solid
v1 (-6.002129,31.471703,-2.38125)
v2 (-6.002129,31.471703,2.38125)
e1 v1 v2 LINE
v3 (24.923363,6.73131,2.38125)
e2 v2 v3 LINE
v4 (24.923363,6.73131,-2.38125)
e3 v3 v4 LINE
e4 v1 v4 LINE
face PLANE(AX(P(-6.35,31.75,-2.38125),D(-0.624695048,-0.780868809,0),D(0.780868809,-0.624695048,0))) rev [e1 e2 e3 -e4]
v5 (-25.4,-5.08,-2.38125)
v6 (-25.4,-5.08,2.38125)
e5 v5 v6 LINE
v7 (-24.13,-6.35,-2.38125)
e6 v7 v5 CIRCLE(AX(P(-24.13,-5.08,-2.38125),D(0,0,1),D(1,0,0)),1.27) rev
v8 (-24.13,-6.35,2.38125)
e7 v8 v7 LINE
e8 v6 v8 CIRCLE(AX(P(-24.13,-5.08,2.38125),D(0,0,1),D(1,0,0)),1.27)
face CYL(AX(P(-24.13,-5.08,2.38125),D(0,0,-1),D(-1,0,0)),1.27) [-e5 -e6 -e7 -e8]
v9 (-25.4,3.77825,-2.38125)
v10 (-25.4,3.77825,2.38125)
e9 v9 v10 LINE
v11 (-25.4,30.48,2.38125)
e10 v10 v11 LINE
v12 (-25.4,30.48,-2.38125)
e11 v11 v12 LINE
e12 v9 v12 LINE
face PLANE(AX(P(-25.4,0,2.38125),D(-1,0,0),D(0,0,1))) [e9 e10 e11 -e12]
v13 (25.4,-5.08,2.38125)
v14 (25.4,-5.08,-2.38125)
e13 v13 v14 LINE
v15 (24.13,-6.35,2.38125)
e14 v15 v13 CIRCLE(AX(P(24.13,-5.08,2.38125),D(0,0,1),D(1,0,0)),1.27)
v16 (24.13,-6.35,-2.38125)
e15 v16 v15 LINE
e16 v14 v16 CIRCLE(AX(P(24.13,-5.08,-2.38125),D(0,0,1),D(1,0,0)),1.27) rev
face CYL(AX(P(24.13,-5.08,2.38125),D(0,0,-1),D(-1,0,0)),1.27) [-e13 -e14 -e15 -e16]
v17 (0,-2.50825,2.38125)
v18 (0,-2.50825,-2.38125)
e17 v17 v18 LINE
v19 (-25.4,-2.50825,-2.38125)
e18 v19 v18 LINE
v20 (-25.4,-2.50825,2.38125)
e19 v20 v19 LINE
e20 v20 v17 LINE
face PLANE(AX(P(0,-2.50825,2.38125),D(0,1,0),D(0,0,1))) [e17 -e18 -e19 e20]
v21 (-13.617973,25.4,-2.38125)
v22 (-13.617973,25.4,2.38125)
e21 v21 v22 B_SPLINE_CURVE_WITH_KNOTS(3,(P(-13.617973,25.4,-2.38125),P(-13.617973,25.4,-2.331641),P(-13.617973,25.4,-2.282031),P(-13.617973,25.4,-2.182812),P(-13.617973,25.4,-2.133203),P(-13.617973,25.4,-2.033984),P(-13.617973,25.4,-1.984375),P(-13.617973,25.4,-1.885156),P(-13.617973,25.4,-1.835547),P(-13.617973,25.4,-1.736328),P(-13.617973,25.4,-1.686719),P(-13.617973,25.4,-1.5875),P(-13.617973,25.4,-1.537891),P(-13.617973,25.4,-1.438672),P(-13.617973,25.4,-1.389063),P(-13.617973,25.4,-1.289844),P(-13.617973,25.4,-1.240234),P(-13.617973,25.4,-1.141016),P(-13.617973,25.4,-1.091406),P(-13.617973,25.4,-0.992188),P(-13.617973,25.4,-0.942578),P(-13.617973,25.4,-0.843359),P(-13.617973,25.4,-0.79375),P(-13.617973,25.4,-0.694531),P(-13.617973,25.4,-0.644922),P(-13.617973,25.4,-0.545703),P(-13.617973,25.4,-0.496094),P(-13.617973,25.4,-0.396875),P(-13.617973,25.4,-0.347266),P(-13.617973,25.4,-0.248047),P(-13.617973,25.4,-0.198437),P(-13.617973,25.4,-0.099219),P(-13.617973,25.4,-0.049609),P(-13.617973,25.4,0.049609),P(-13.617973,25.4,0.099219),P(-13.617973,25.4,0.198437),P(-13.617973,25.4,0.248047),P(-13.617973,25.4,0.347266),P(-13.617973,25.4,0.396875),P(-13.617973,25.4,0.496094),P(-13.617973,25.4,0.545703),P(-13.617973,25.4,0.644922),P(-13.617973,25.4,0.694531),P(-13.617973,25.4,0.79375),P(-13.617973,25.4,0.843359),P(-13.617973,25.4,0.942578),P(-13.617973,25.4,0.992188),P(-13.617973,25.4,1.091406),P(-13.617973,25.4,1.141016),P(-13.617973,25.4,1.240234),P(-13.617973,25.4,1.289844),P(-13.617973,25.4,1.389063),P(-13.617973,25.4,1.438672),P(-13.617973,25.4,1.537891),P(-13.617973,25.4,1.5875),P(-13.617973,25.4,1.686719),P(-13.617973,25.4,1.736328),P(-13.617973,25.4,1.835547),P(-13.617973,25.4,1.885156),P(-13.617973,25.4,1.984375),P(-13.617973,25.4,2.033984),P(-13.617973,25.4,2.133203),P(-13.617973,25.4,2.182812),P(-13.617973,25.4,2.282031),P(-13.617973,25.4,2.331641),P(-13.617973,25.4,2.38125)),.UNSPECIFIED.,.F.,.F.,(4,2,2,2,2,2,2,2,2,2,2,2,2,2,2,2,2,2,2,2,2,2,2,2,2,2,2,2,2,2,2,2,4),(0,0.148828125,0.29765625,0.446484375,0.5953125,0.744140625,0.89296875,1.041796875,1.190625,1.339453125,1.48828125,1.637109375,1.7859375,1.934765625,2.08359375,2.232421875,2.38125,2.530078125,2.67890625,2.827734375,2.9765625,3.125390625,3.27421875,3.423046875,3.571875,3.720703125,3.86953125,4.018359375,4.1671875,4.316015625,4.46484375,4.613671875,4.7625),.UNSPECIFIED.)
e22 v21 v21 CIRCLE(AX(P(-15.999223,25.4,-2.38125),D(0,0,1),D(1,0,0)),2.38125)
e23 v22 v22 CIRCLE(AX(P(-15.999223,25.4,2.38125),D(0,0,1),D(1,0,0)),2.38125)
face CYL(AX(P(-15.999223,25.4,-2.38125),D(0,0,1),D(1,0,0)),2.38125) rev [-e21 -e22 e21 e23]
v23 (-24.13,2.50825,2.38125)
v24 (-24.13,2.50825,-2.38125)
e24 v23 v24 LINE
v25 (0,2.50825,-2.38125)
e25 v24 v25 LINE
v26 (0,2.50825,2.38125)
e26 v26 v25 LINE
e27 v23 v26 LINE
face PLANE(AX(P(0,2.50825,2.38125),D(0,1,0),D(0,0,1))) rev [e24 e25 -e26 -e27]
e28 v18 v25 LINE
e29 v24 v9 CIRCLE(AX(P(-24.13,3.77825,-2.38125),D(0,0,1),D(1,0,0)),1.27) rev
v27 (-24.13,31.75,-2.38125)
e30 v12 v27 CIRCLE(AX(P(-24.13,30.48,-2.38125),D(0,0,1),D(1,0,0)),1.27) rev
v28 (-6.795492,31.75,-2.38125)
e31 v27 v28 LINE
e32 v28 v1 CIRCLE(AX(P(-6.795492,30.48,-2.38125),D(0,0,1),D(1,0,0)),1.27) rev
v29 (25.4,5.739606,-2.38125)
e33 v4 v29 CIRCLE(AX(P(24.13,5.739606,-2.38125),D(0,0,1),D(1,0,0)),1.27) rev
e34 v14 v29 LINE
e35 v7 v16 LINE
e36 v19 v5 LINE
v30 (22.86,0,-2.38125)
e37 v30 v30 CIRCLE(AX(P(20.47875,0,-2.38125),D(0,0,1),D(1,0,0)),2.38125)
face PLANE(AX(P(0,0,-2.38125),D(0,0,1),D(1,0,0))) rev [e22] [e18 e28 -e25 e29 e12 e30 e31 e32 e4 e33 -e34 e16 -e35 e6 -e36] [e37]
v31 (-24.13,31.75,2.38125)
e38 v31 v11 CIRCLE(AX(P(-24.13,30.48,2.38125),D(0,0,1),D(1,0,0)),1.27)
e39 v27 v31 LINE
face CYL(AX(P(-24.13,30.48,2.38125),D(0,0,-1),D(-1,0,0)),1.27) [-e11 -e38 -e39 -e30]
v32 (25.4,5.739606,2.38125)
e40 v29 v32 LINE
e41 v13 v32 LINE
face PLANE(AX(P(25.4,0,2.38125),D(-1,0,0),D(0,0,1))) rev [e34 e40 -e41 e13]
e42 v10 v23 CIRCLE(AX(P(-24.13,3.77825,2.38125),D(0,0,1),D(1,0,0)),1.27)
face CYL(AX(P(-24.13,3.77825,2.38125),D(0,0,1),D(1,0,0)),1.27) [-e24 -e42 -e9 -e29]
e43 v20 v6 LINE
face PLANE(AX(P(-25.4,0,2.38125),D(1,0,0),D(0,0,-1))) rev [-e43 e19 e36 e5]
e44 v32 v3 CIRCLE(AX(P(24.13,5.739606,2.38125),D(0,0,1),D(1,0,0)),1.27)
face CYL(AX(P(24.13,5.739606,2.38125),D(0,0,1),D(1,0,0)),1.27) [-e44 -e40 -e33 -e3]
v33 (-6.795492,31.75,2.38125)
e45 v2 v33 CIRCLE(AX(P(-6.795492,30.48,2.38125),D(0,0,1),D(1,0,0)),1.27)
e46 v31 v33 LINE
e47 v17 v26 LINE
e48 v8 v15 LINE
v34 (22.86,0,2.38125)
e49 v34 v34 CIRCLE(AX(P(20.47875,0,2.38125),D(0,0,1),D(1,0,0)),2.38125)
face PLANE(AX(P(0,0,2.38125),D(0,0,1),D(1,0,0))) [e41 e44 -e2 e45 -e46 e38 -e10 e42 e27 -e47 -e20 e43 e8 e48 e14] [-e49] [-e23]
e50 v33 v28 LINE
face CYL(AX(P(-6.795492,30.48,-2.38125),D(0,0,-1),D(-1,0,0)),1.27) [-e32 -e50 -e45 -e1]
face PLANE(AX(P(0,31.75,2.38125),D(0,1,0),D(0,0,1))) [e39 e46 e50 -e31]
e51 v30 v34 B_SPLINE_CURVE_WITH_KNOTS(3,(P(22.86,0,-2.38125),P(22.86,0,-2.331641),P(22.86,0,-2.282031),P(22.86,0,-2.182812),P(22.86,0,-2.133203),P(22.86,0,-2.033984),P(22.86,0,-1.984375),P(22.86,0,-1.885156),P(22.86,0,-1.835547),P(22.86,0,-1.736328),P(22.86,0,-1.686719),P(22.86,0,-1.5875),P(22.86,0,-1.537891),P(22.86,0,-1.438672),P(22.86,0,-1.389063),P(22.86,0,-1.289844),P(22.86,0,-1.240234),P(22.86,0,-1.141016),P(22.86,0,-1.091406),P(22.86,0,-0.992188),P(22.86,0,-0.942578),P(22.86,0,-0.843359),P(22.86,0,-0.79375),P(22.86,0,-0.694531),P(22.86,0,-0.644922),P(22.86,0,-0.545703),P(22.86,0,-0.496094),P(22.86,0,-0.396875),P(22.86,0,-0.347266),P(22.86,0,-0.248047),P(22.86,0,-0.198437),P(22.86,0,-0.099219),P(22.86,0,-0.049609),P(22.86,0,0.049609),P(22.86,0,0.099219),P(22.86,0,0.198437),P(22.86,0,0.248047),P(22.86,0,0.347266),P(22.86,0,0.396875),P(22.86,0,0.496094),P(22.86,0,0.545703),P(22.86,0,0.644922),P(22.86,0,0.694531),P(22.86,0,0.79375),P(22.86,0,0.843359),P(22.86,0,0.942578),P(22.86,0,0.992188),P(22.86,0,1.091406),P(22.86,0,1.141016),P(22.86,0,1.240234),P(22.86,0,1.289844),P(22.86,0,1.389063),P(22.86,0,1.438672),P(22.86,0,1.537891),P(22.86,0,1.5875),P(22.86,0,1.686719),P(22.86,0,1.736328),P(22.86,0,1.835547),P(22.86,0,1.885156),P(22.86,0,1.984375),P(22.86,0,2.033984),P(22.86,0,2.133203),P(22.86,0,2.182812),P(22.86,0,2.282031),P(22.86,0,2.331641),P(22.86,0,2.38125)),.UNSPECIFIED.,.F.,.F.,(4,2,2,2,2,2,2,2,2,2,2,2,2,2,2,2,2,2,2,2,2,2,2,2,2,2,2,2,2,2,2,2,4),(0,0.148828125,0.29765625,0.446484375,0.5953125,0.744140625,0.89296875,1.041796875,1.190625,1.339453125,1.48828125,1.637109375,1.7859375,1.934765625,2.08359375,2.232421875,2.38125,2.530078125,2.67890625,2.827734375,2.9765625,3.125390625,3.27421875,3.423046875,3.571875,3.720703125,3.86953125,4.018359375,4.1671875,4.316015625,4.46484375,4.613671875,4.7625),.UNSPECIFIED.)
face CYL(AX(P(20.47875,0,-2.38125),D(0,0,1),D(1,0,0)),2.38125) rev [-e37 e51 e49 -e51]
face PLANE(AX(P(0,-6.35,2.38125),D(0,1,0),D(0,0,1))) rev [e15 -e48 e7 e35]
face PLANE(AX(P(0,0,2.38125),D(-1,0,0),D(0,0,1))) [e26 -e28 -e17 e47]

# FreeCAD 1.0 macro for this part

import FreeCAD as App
import Part
import Sketcher
from FreeCAD import Vector
Q = App.Units.Quantity


def edges_at(feature, points):
    """Names of the edges that pass closest to the given points."""
    edges = feature.Shape.Edges
    near = lambda p: min(range(len(edges)), key=lambda i: edges[i].distToShape(Part.Vertex(*p))[0])
    return sorted({f"Edge{near(p) + 1}" for p in points})

doc = App.newDocument("Part")
params = doc.addObject("Spreadsheet::Sheet", "Params")
for row, (alias, value) in enumerate([
    ("sketch1_width", "1 in"),
    ("sketch1_width2", "2 in"),
    ("sketch1_height", "1.5 in"),
    ("pad1_length", "0.1875 in"),
    ("sketch2_diameter", "0.1875 in"),
    ("sketch3_diameter", "0.1875 in"),
    ("sketch4_height", "1 in"),
    ("sketch4_width", "1.25 in"),
    ("fillet_radius", "0.05 in"),
], start=1):
    params.set(f"A{row}", alias)
    params.set(f"B{row}", "=" + value)
    params.setAlias(f"B{row}", alias)

body = doc.addObject("PartDesign::Body", "Body")

# Sketch on XY plane
sketch1 = body.newObject("Sketcher::SketchObject", "Sketch")
sketch1.AttachmentSupport = (doc.getObject("XY_Plane"), [""])
sketch1.MapMode = "FlatFace"
sketch1.addGeometry([
    Part.LineSegment(Vector(-25.4, 31.75, 0), Vector(-25.4, 2.50825, 0)),  # 0
    Part.LineSegment(Vector(-25.4, 2.50825, 0), Vector(0, 2.50825, 0)),  # 1
    Part.LineSegment(Vector(0, 2.50825, 0), Vector(0, -2.50825, 0)),  # 2
    Part.LineSegment(Vector(0, -2.50825, 0), Vector(-25.4, -2.50825, 0)),  # 3
    Part.LineSegment(Vector(-25.4, -2.50825, 0), Vector(-25.4, -6.35, 0)),  # 4
    Part.LineSegment(Vector(-25.4, -6.35, 0), Vector(25.4, -6.35, 0)),  # 5
    Part.LineSegment(Vector(25.4, -6.35, 0), Vector(25.4, 31.75, 0)),  # 6
    Part.LineSegment(Vector(25.4, 31.75, 0), Vector(-25.4, 31.75, 0)),  # 7
], False)
sketch1.addConstraint([
    Sketcher.Constraint("Coincident", 0, 2, 1, 1),
    Sketcher.Constraint("Coincident", 1, 2, 2, 1),
    Sketcher.Constraint("Coincident", 2, 2, 3, 1),
    Sketcher.Constraint("Coincident", 3, 2, 4, 1),
    Sketcher.Constraint("Coincident", 4, 2, 5, 1),
    Sketcher.Constraint("Coincident", 5, 2, 6, 1),
    Sketcher.Constraint("Coincident", 6, 2, 7, 1),
    Sketcher.Constraint("Coincident", 7, 2, 0, 1),
    Sketcher.Constraint("Vertical", 0),
    Sketcher.Constraint("Horizontal", 1),
    Sketcher.Constraint("Vertical", 2),
    Sketcher.Constraint("Horizontal", 3),
    Sketcher.Constraint("Vertical", 4),
    Sketcher.Constraint("Horizontal", 5),
    Sketcher.Constraint("Vertical", 6),
    Sketcher.Constraint("Horizontal", 7),
    Sketcher.Constraint("Symmetric", 1, 2, 2, 2, -1, 1),
    Sketcher.Constraint("Vertical", 0, 2, 3, 2),
    Sketcher.Constraint("DistanceX", 1, 1, 1, 2, Q("1 in")),
    Sketcher.Constraint("DistanceX", 5, 1, 5, 2, Q("2 in")),
    Sketcher.Constraint("DistanceY", 6, 1, 6, 2, Q("1.5 in")),
    Sketcher.Constraint("DistanceY", 4, 2, -1, 1, Q("0.25 in")),
    Sketcher.Constraint("DistanceY", 2, 2, 2, 1, Q("0.1975 in")),
])
sketch1.setExpression("Constraints[18]", "Params.sketch1_width")
sketch1.setExpression("Constraints[19]", "Params.sketch1_width2")
sketch1.setExpression("Constraints[20]", "Params.sketch1_height")
pad1 = body.newObject("PartDesign::Pad", "Pad")
pad1.Profile = sketch1
pad1.setExpression("Length", "Params.pad1_length")
pad1.Midplane = True

# Sketch on XY plane
sketch2 = body.newObject("Sketcher::SketchObject", "Sketch001")
sketch2.AttachmentSupport = (doc.getObject("XY_Plane"), [""])
sketch2.MapMode = "FlatFace"
sketch2.AttachmentOffset = App.Placement(Vector(0, 0, 0.09375 * 25.4), App.Rotation())
sketch2.addGeometry(Part.Circle(Vector(20.47875, 0, 0), Vector(0, 0, 1), 2.38125), False)
sketch2.addConstraint([
    Sketcher.Constraint("PointOnObject", 0, 3, -1),
    Sketcher.Constraint("Diameter", 0, Q("0.1875 in")),
    Sketcher.Constraint("DistanceX", -1, 1, 0, 3, Q("20.47875 mm")),
])
sketch2.setExpression("Constraints[1]", "Params.sketch2_diameter")
pocket1 = body.newObject("PartDesign::Pocket", "Pocket")
pocket1.Profile = sketch2
pocket1.Type = "ThroughAll"

# Sketch on XY plane
sketch3 = body.newObject("Sketcher::SketchObject", "Sketch002")
sketch3.AttachmentSupport = (doc.getObject("XY_Plane"), [""])
sketch3.MapMode = "FlatFace"
sketch3.AttachmentOffset = App.Placement(Vector(0, 0, 0.09375 * 25.4), App.Rotation())
sketch3.addGeometry(Part.Circle(Vector(-15.999223, 25.4, 0), Vector(0, 0, 1), 2.38125), False)
sketch3.addConstraint([
    Sketcher.Constraint("Diameter", 0, Q("0.1875 in")),
    Sketcher.Constraint("DistanceY", -1, 1, 0, 3, Q("1 in")),
    Sketcher.Constraint("DistanceX", 0, 3, -1, 1, Q("15.999223 mm")),
])
sketch3.setExpression("Constraints[0]", "Params.sketch3_diameter")
pocket2 = body.newObject("PartDesign::Pocket", "Pocket001")
pocket2.Profile = sketch3
pocket2.Type = "ThroughAll"

# Sketch on XY plane
sketch4 = body.newObject("Sketcher::SketchObject", "Sketch003")
sketch4.AttachmentSupport = (doc.getObject("XY_Plane"), [""])
sketch4.MapMode = "FlatFace"
sketch4.AttachmentOffset = App.Placement(Vector(0, 0, 0.09375 * 25.4), App.Rotation())
sketch4.addGeometry([
    Part.LineSegment(Vector(-6.35, 31.75, 0), Vector(25.4, 6.35, 0)),
    Part.LineSegment(Vector(25.4, 6.35, 0), Vector(25.4, 31.75, 0)),
    Part.LineSegment(Vector(25.4, 31.75, 0), Vector(-6.35, 31.75, 0)),
], False)
sketch4.addConstraint([
    Sketcher.Constraint("Coincident", 0, 2, 1, 1),
    Sketcher.Constraint("Coincident", 1, 2, 2, 1),
    Sketcher.Constraint("Coincident", 2, 2, 0, 1),
    Sketcher.Constraint("Vertical", 1),
    Sketcher.Constraint("Horizontal", 2),
    Sketcher.Constraint("DistanceY", 1, 1, 1, 2, Q("1 in")),
    Sketcher.Constraint("DistanceX", -1, 1, 0, 2, Q("1 in")),
    Sketcher.Constraint("DistanceX", 2, 2, 2, 1, Q("1.25 in")),
    Sketcher.Constraint("DistanceY", -1, 1, 0, 2, Q("0.25 in")),
])
sketch4.setExpression("Constraints[5]", "Params.sketch4_height")
sketch4.setExpression("Constraints[7]", "Params.sketch4_width")
pocket3 = body.newObject("PartDesign::Pocket", "Pocket002")
pocket3.Profile = sketch4
pocket3.Type = "ThroughAll"
doc.recompute()

fillet = body.newObject("PartDesign::Fillet", "Fillet")
fillet.Base = (pocket3, edges_at(pocket3, [
    (-25.4, 31.75, 0),
    (25.4, -6.35, 0),
    (-25.4, -6.35, 0),
    (-25.4, 2.508, 0),
    (-6.35, 31.75, 0),
    (25.4, 6.35, 0),
]))
fillet.setExpression("Radius", "Params.fillet_radius")

doc.recompute()
